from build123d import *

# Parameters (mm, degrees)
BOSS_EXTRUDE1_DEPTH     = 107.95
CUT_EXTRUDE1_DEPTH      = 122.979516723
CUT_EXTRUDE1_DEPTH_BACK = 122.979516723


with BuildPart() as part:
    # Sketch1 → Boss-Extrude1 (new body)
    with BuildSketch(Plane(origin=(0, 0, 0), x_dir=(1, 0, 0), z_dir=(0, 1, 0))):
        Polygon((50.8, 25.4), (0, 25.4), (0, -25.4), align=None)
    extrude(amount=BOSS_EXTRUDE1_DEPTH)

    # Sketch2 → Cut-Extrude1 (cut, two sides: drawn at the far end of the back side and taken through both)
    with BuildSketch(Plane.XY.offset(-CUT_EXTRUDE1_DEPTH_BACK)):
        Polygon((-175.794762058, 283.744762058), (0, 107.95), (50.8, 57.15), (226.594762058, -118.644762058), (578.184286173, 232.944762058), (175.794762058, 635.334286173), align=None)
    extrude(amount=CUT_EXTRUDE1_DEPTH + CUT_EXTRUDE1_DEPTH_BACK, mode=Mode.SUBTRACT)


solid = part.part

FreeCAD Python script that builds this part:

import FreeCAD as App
import Part
import Sketcher
Q = App.Units.Quantity

doc = App.newDocument("Part")
body = doc.addObject("PartDesign::Body", "Body")

# Sketch on XZ plane
sketch1 = body.newObject("Sketcher::SketchObject", "Sketch")
sketch1.AttachmentSupport = (doc.getObject("XZ_Plane"), [""])
sketch1.MapMode = "FlatFace"
sketch1.addGeometry([
    Part.LineSegment(App.Vector(51, -25, 0), App.Vector(0, -25, 0)),
    Part.LineSegment(App.Vector(0, -25, 0), App.Vector(0, 25, 0)),
    Part.LineSegment(App.Vector(0, 25, 0), App.Vector(51, -25, 0)),
], False)
sketch1.addConstraint([
    Sketcher.Constraint("Coincident", 0, 2, 1, 1),
    Sketcher.Constraint("Coincident", 1, 2, 2, 1),
    Sketcher.Constraint("Coincident", 2, 2, 0, 1),
    Sketcher.Constraint("Horizontal", 0),
    Sketcher.Constraint("Vertical", 1),
    Sketcher.Constraint("Symmetric", 0, 2, 1, 2, -1, 1),
    Sketcher.Constraint("Equal", 0, 1),
    Sketcher.Constraint("DistanceX", 0, 2, 0, 1, Q("2 in")),
])
pad1 = body.newObject("PartDesign::Pad", "Pad")
pad1.Profile = sketch1
pad1.Length = Q("4.25 in")
pad1.Reversed = True

# Sketch on XY plane
sketch2 = body.newObject("Sketcher::SketchObject", "Sketch001")
sketch2.AttachmentSupport = (doc.getObject("XY_Plane"), [""])
sketch2.MapMode = "FlatFace"
sketch2.addGeometry([
    Part.LineSegment(App.Vector(-176, 284, 0), App.Vector(227, -119, 0)),
    Part.LineSegment(App.Vector(227, -119, 0), App.Vector(578, 233, 0)),
    Part.LineSegment(App.Vector(578, 233, 0), App.Vector(176, 635, 0)),
    Part.LineSegment(App.Vector(176, 635, 0), App.Vector(-176, 284, 0)),
], False)
sketch2.addConstraint([
    Sketcher.Constraint("Coincident", 0, 2, 1, 1),
    Sketcher.Constraint("Coincident", 1, 2, 2, 1),
    Sketcher.Constraint("Coincident", 2, 2, 3, 1),
    Sketcher.Constraint("Coincident", 3, 2, 0, 1),
    Sketcher.Constraint("Perpendicular", 0, 1),
    Sketcher.Constraint("Perpendicular", 1, 2),
    Sketcher.Constraint("Perpendicular", 2, 3),
    Sketcher.Constraint("Angle", 0, Q("-45 deg")),
    Sketcher.Constraint("DistanceX", 2, 2, 0, 2, Q("2 in")),
    Sketcher.Constraint("DistanceY", 0, 2, 2, 2, Q("753.979048 mm")),
    Sketcher.Constraint("DistanceX", -1, 1, 0, 2, Q("226.594762 mm")),
    Sketcher.Constraint("DistanceY", 0, 2, -1, 1, Q("118.644762 mm")),
])
pocket1 = body.newObject("PartDesign::Pocket", "Pocket")
pocket1.Profile = sketch2
pocket1.Type = "ThroughAll"
pocket1.Midplane = True

doc.recompute()
